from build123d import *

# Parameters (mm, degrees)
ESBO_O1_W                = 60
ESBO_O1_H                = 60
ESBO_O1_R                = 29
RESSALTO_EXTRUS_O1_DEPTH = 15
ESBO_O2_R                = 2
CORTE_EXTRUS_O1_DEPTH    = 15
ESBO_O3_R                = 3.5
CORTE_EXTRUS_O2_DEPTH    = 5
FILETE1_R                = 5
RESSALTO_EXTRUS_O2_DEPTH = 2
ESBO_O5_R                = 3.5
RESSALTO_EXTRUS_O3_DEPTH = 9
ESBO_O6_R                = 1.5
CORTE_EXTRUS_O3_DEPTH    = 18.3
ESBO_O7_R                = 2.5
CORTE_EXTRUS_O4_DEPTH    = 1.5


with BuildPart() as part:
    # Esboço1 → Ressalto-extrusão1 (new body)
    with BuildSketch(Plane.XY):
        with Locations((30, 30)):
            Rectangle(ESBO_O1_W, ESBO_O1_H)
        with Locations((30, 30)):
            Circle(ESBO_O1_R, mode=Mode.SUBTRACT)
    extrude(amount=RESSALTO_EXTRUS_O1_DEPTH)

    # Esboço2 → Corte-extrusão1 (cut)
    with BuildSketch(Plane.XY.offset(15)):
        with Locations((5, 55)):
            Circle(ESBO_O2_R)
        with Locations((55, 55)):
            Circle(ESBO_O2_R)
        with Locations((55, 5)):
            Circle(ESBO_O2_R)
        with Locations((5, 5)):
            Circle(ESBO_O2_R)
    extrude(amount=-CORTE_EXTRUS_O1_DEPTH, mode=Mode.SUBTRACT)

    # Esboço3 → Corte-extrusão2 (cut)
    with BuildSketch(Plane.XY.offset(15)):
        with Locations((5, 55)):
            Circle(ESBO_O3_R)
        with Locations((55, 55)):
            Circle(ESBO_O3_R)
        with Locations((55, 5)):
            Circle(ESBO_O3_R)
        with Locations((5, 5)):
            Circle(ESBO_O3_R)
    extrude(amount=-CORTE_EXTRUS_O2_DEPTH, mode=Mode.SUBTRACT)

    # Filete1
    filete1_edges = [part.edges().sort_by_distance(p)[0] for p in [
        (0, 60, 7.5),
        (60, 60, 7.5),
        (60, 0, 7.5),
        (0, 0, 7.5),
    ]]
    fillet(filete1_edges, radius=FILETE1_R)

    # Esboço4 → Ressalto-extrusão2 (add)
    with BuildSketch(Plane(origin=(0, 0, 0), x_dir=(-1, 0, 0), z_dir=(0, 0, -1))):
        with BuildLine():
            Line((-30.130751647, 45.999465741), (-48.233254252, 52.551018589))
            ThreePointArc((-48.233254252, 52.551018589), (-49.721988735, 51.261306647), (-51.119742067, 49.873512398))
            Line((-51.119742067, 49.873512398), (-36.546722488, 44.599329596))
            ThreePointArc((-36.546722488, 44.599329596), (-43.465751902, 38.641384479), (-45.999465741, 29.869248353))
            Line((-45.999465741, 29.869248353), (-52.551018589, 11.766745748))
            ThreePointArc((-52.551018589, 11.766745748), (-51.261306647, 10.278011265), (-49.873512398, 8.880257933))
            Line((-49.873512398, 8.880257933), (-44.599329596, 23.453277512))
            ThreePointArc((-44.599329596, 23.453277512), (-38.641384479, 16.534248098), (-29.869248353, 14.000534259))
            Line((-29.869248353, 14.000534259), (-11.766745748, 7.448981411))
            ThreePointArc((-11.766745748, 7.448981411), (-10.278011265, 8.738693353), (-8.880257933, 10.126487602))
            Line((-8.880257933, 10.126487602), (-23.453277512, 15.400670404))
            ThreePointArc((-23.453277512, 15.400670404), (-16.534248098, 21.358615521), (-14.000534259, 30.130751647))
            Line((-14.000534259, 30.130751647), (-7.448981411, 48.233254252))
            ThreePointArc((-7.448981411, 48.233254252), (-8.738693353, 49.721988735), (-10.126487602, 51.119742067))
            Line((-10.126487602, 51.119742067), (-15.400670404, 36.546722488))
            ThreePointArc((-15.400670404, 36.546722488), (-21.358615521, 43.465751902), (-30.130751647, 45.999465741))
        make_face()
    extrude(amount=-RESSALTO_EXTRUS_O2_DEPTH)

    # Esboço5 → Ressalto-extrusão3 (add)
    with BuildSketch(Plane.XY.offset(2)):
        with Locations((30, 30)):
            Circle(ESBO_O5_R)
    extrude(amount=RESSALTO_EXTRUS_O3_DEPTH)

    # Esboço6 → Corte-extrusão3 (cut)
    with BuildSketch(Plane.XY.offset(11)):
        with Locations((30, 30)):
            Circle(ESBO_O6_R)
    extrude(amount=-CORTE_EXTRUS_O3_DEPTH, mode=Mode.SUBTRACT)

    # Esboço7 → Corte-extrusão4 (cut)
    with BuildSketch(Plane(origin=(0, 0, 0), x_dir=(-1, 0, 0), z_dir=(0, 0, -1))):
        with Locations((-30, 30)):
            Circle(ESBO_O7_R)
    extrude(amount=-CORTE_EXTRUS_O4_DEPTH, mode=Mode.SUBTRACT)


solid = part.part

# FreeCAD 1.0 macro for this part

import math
import FreeCAD as App
import Part
import Sketcher

V = App.Vector
Q = App.Units.Quantity


def edges_at(feature, points):
    """Names of the edges that pass closest to the given points."""
    edges = feature.Shape.Edges
    near = lambda p: min(range(len(edges)), key=lambda i: edges[i].distToShape(Part.Vertex(*p))[0])
    return sorted({f"Edge{near(p) + 1}" for p in points})


def add_polygon(sketch, points):
    """Adds a closed chain of lines whose ends are joined by coincident constraints."""
    first, n = sketch.GeometryCount, len(points)
    for a, b in zip(points, points[1:] + points[:1]):
        sketch.addGeometry(Part.LineSegment(App.Vector(*a, 0), App.Vector(*b, 0)), False)
    for i in range(n):
        sketch.addConstraint(Sketcher.Constraint("Coincident", first + i, 2, first + (i + 1) % n, 1))

doc = App.newDocument("Part")
body = doc.addObject("PartDesign::Body", "Body")

sketch1 = body.newObject("Sketcher::SketchObject", "Sketch")
sketch1.AttachmentSupport = (doc.getObject("XY_Plane"), [""])
sketch1.MapMode = "FlatFace"
add_polygon(sketch1, [(0, 60), (0, 0), (60, 0), (60, 60)])
sketch1.addGeometry(Part.Circle(V(30, 30, 0), V(0, 0, 1), 29), False)
sketch1.addConstraint([
    Sketcher.Constraint("Vertical", 0),
    Sketcher.Constraint("Horizontal", 1),
    Sketcher.Constraint("Vertical", 2),
    Sketcher.Constraint("Horizontal", 3),
    Sketcher.Constraint("Coincident", 0, 2, -1, 1),
    Sketcher.Constraint("Equal", 3, 0),
    Sketcher.Constraint("Diameter", 4, Q("58 mm")),
    Sketcher.Constraint("DistanceX", 1, 1, 1, 2, Q("60 mm")),
    Sketcher.Constraint("DistanceX", -1, 1, 4, 3, Q("30 mm")),
    Sketcher.Constraint("DistanceY", -1, 1, 4, 3, Q("30 mm")),
])
pad1 = body.newObject("PartDesign::Pad", "Pad")
pad1.Profile = sketch1
pad1.Length = 15

sketch2 = body.newObject("Sketcher::SketchObject", "Sketch001")
sketch2.AttachmentSupport = (doc.getObject("XY_Plane"), [""])
sketch2.MapMode = "FlatFace"
sketch2.AttachmentOffset = App.Placement(V(0, 0, 15), App.Rotation())
sketch2.addGeometry([
    Part.Circle(V(5, 55, 0), V(0, 0, 1), 2),
    Part.Circle(V(55, 55, 0), V(0, 0, 1), 2),
    Part.Circle(V(55, 5, 0), V(0, 0, 1), 2),
    Part.Circle(V(5, 5, 0), V(0, 0, 1), 2),
], False)
sketch2.addConstraint([
    Sketcher.Constraint("Equal", 0, 1),
    Sketcher.Constraint("Equal", 1, 2),
    Sketcher.Constraint("Equal", 2, 3),
    Sketcher.Constraint("Horizontal", 0, 3, 1, 3),
    Sketcher.Constraint("Horizontal", 2, 3, 3, 3),
    Sketcher.Constraint("Vertical", 1, 3, 2, 3),
    Sketcher.Constraint("Vertical", 0, 3, 3, 3),
    Sketcher.Constraint("Diameter", 0, Q("4 mm")),
    Sketcher.Constraint("DistanceX", -1, 1, 0, 3, Q("5 mm")),
    Sketcher.Constraint("DistanceY", -1, 1, 0, 3, Q("55 mm")),
    Sketcher.Constraint("DistanceX", -1, 1, 1, 3, Q("55 mm")),
    Sketcher.Constraint("DistanceY", -1, 1, 2, 3, Q("5 mm")),
])
pocket1 = body.newObject("PartDesign::Pocket", "Pocket")
pocket1.Profile = sketch2
pocket1.Length = 15

sketch3 = body.newObject("Sketcher::SketchObject", "Sketch002")
sketch3.AttachmentSupport = (doc.getObject("XY_Plane"), [""])
sketch3.MapMode = "FlatFace"
sketch3.AttachmentOffset = App.Placement(V(0, 0, 15), App.Rotation())
sketch3.addGeometry([
    Part.Circle(V(5, 55, 0), V(0, 0, 1), 3.5),
    Part.Circle(V(55, 55, 0), V(0, 0, 1), 3.5),
    Part.Circle(V(55, 5, 0), V(0, 0, 1), 3.5),
    Part.Circle(V(5, 5, 0), V(0, 0, 1), 3.5),
], False)
sketch3.addConstraint([
    Sketcher.Constraint("Equal", 0, 1),
    Sketcher.Constraint("Equal", 1, 2),
    Sketcher.Constraint("Equal", 2, 3),
    Sketcher.Constraint("Horizontal", 0, 3, 1, 3),
    Sketcher.Constraint("Horizontal", 2, 3, 3, 3),
    Sketcher.Constraint("Vertical", 1, 3, 2, 3),
    Sketcher.Constraint("Vertical", 0, 3, 3, 3),
    Sketcher.Constraint("Diameter", 0, Q("7 mm")),
    Sketcher.Constraint("DistanceX", -1, 1, 0, 3, Q("5 mm")),
    Sketcher.Constraint("DistanceY", -1, 1, 0, 3, Q("55 mm")),
    Sketcher.Constraint("DistanceX", -1, 1, 1, 3, Q("55 mm")),
    Sketcher.Constraint("DistanceY", -1, 1, 2, 3, Q("5 mm")),
])
pocket2 = body.newObject("PartDesign::Pocket", "Pocket001")
pocket2.Profile = sketch3
pocket2.Length = 5
doc.recompute()

fillet = body.newObject("PartDesign::Fillet", "Fillet")
fillet.Base = (pocket2, edges_at(pocket2, [
    (0, 60, 7.5),
    (60, 60, 7.5),
    (60, 0, 7.5),
    (0, 0, 7.5),
]))
fillet.Radius = 5

sketch4 = body.newObject("Sketcher::SketchObject", "Sketch003")
sketch4.AttachmentSupport = (doc.getObject("XY_Plane"), [""])
sketch4.MapMode = "FlatFace"
sketch4.addGeometry([
    Part.LineSegment(V(30.1, 46, 0), V(48.2, 52.6, 0)),
    Part.ArcOfCircle(Part.Circle(V(30, 30, 0), V(0, 0, 1), 29), math.radians(43.26), math.radians(51.04)),
    Part.LineSegment(V(51.1, 49.9, 0), V(36.5, 44.6, 0)),
    Part.ArcOfCircle(Part.Circle(V(30, 30, 0), V(0, 0, 1), 16), math.radians(0), math.radians(66)),
    Part.LineSegment(V(46, 29.9, 0), V(52.6, 11.8, 0)),
    Part.ArcOfCircle(Part.Circle(V(30, 30, 0), V(0, 0, 1), 29), math.radians(-46.74), math.radians(-38.96)),
    Part.LineSegment(V(49.9, 8.9, 0), V(44.6, 23.5, 0)),
    Part.ArcOfCircle(Part.Circle(V(30, 30, 0), V(0, 0, 1), 16), math.radians(-90), math.radians(-24)),
    Part.LineSegment(V(29.9, 14, 0), V(11.8, 7.4, 0)),
    Part.ArcOfCircle(Part.Circle(V(30, 30, 0), V(0, 0, 1), 29), math.radians(-136.74), math.radians(-128.96)),
    Part.LineSegment(V(8.9, 10.1, 0), V(23.5, 15.4, 0)),
    Part.ArcOfCircle(Part.Circle(V(30, 30, 0), V(0, 0, 1), 16), math.radians(180), math.radians(246)),
    Part.LineSegment(V(14, 30.1, 0), V(7.4, 48.2, 0)),
    Part.ArcOfCircle(Part.Circle(V(30, 30, 0), V(0, 0, 1), 29), math.radians(133.26), math.radians(141.04)),
    Part.LineSegment(V(10.1, 51.1, 0), V(15.4, 36.5, 0)),
    Part.ArcOfCircle(Part.Circle(V(30, 30, 0), V(0, 0, 1), 16), math.radians(90), math.radians(156)),
], False)
sketch4.addConstraint([
    Sketcher.Constraint("Coincident", 0, 2, 1, 2),
    Sketcher.Constraint("Coincident", 1, 1, 2, 1),
    Sketcher.Constraint("Coincident", 2, 2, 3, 2),
    Sketcher.Constraint("Coincident", 3, 1, 4, 1),
    Sketcher.Constraint("Coincident", 4, 2, 5, 2),
    Sketcher.Constraint("Coincident", 5, 1, 6, 1),
    Sketcher.Constraint("Coincident", 6, 2, 7, 2),
    Sketcher.Constraint("Coincident", 7, 1, 8, 1),
    Sketcher.Constraint("Coincident", 8, 2, 9, 2),
    Sketcher.Constraint("Coincident", 9, 1, 10, 1),
    Sketcher.Constraint("Coincident", 10, 2, 11, 2),
    Sketcher.Constraint("Coincident", 11, 1, 12, 1),
    Sketcher.Constraint("Coincident", 12, 2, 13, 2),
    Sketcher.Constraint("Coincident", 13, 1, 14, 1),
    Sketcher.Constraint("Coincident", 14, 2, 15, 2),
    Sketcher.Constraint("Coincident", 15, 1, 0, 1),
    Sketcher.Constraint("Coincident", 3, 3, 1, 3),
    Sketcher.Constraint("Coincident", 5, 3, 1, 3),
    Sketcher.Constraint("Coincident", 7, 3, 1, 3),
    Sketcher.Constraint("Coincident", 9, 3, 1, 3),
    Sketcher.Constraint("Coincident", 11, 3, 1, 3),
    Sketcher.Constraint("Coincident", 13, 3, 1, 3),
    Sketcher.Constraint("Coincident", 15, 3, 1, 3),
    Sketcher.Constraint("Equal", 1, 5),
    Sketcher.Constraint("Equal", 3, 7),
    Sketcher.Constraint("Equal", 5, 9),
    Sketcher.Constraint("Equal", 7, 11),
    Sketcher.Constraint("Equal", 9, 13),
    Sketcher.Constraint("Equal", 11, 15),
    Sketcher.Constraint("Parallel", 0, 2),
    Sketcher.Constraint("Perpendicular", 2, 4),
    Sketcher.Constraint("Parallel", 4, 6),
    Sketcher.Constraint("Perpendicular", 6, 8),
    Sketcher.Constraint("Parallel", 8, 10),
    Sketcher.Constraint("Perpendicular", 10, 12),
    Sketcher.Constraint("Parallel", 12, 14),
    Sketcher.Constraint("Equal", 0, 4),
    Sketcher.Constraint("Equal", 2, 6),
    Sketcher.Constraint("Equal", 4, 8),
    Sketcher.Constraint("Equal", 6, 10),
    Sketcher.Constraint("Equal", 8, 12),
    Sketcher.Constraint("Equal", 10, 14),
    Sketcher.Constraint("Radius", 1, Q("29 mm")),
    Sketcher.Constraint("Radius", 3, Q("16 mm")),
    Sketcher.Constraint("DistanceX", -1, 1, 1, 3, Q("30 mm")),
    Sketcher.Constraint("DistanceY", -1, 1, 1, 3, Q("30 mm")),
    Sketcher.Constraint("Distance", 2, Q("15.498061 mm")),
    Sketcher.Constraint("DistanceY", -1, 1, 0, 2, Q("52.551019 mm")),
    Sketcher.Constraint("DistanceY", -1, 1, 2, 2, Q("44.59933 mm")),
])
pad2 = body.newObject("PartDesign::Pad", "Pad001")
pad2.Profile = sketch4
pad2.Length = 2

sketch5 = body.newObject("Sketcher::SketchObject", "Sketch004")
sketch5.AttachmentSupport = (doc.getObject("XY_Plane"), [""])
sketch5.MapMode = "FlatFace"
sketch5.AttachmentOffset = App.Placement(V(0, 0, 2), App.Rotation())
sketch5.addGeometry(Part.Circle(V(30, 30, 0), V(0, 0, 1), 3.5), False)
sketch5.addConstraint([
    Sketcher.Constraint("Diameter", 0, Q("7 mm")),
    Sketcher.Constraint("DistanceX", -1, 1, 0, 3, Q("30 mm")),
    Sketcher.Constraint("DistanceY", -1, 1, 0, 3, Q("30 mm")),
])
pad3 = body.newObject("PartDesign::Pad", "Pad002")
pad3.Profile = sketch5
pad3.Length = 9

sketch6 = body.newObject("Sketcher::SketchObject", "Sketch005")
sketch6.AttachmentSupport = (doc.getObject("XY_Plane"), [""])
sketch6.MapMode = "FlatFace"
sketch6.AttachmentOffset = App.Placement(V(0, 0, 11), App.Rotation())
sketch6.addGeometry(Part.Circle(V(30, 30, 0), V(0, 0, 1), 1.5), False)
sketch6.addConstraint([
    Sketcher.Constraint("Diameter", 0, Q("3 mm")),
    Sketcher.Constraint("DistanceX", -1, 1, 0, 3, Q("30 mm")),
    Sketcher.Constraint("DistanceY", -1, 1, 0, 3, Q("30 mm")),
])
pocket3 = body.newObject("PartDesign::Pocket", "Pocket002")
pocket3.Profile = sketch6
pocket3.Length = 18.3

sketch7 = body.newObject("Sketcher::SketchObject", "Sketch006")
sketch7.AttachmentSupport = (doc.getObject("XY_Plane"), [""])
sketch7.MapMode = "FlatFace"
sketch7.addGeometry(Part.Circle(V(30, 30, 0), V(0, 0, 1), 2.5), False)
sketch7.addConstraint([
    Sketcher.Constraint("Diameter", 0, Q("5 mm")),
    Sketcher.Constraint("DistanceX", -1, 1, 0, 3, Q("30 mm")),
    Sketcher.Constraint("DistanceY", -1, 1, 0, 3, Q("30 mm")),
])
pocket4 = body.newObject("PartDesign::Pocket", "Pocket003")
pocket4.Profile = sketch7
pocket4.Length = 1.5
pocket4.Reversed = True

doc.recompute()
